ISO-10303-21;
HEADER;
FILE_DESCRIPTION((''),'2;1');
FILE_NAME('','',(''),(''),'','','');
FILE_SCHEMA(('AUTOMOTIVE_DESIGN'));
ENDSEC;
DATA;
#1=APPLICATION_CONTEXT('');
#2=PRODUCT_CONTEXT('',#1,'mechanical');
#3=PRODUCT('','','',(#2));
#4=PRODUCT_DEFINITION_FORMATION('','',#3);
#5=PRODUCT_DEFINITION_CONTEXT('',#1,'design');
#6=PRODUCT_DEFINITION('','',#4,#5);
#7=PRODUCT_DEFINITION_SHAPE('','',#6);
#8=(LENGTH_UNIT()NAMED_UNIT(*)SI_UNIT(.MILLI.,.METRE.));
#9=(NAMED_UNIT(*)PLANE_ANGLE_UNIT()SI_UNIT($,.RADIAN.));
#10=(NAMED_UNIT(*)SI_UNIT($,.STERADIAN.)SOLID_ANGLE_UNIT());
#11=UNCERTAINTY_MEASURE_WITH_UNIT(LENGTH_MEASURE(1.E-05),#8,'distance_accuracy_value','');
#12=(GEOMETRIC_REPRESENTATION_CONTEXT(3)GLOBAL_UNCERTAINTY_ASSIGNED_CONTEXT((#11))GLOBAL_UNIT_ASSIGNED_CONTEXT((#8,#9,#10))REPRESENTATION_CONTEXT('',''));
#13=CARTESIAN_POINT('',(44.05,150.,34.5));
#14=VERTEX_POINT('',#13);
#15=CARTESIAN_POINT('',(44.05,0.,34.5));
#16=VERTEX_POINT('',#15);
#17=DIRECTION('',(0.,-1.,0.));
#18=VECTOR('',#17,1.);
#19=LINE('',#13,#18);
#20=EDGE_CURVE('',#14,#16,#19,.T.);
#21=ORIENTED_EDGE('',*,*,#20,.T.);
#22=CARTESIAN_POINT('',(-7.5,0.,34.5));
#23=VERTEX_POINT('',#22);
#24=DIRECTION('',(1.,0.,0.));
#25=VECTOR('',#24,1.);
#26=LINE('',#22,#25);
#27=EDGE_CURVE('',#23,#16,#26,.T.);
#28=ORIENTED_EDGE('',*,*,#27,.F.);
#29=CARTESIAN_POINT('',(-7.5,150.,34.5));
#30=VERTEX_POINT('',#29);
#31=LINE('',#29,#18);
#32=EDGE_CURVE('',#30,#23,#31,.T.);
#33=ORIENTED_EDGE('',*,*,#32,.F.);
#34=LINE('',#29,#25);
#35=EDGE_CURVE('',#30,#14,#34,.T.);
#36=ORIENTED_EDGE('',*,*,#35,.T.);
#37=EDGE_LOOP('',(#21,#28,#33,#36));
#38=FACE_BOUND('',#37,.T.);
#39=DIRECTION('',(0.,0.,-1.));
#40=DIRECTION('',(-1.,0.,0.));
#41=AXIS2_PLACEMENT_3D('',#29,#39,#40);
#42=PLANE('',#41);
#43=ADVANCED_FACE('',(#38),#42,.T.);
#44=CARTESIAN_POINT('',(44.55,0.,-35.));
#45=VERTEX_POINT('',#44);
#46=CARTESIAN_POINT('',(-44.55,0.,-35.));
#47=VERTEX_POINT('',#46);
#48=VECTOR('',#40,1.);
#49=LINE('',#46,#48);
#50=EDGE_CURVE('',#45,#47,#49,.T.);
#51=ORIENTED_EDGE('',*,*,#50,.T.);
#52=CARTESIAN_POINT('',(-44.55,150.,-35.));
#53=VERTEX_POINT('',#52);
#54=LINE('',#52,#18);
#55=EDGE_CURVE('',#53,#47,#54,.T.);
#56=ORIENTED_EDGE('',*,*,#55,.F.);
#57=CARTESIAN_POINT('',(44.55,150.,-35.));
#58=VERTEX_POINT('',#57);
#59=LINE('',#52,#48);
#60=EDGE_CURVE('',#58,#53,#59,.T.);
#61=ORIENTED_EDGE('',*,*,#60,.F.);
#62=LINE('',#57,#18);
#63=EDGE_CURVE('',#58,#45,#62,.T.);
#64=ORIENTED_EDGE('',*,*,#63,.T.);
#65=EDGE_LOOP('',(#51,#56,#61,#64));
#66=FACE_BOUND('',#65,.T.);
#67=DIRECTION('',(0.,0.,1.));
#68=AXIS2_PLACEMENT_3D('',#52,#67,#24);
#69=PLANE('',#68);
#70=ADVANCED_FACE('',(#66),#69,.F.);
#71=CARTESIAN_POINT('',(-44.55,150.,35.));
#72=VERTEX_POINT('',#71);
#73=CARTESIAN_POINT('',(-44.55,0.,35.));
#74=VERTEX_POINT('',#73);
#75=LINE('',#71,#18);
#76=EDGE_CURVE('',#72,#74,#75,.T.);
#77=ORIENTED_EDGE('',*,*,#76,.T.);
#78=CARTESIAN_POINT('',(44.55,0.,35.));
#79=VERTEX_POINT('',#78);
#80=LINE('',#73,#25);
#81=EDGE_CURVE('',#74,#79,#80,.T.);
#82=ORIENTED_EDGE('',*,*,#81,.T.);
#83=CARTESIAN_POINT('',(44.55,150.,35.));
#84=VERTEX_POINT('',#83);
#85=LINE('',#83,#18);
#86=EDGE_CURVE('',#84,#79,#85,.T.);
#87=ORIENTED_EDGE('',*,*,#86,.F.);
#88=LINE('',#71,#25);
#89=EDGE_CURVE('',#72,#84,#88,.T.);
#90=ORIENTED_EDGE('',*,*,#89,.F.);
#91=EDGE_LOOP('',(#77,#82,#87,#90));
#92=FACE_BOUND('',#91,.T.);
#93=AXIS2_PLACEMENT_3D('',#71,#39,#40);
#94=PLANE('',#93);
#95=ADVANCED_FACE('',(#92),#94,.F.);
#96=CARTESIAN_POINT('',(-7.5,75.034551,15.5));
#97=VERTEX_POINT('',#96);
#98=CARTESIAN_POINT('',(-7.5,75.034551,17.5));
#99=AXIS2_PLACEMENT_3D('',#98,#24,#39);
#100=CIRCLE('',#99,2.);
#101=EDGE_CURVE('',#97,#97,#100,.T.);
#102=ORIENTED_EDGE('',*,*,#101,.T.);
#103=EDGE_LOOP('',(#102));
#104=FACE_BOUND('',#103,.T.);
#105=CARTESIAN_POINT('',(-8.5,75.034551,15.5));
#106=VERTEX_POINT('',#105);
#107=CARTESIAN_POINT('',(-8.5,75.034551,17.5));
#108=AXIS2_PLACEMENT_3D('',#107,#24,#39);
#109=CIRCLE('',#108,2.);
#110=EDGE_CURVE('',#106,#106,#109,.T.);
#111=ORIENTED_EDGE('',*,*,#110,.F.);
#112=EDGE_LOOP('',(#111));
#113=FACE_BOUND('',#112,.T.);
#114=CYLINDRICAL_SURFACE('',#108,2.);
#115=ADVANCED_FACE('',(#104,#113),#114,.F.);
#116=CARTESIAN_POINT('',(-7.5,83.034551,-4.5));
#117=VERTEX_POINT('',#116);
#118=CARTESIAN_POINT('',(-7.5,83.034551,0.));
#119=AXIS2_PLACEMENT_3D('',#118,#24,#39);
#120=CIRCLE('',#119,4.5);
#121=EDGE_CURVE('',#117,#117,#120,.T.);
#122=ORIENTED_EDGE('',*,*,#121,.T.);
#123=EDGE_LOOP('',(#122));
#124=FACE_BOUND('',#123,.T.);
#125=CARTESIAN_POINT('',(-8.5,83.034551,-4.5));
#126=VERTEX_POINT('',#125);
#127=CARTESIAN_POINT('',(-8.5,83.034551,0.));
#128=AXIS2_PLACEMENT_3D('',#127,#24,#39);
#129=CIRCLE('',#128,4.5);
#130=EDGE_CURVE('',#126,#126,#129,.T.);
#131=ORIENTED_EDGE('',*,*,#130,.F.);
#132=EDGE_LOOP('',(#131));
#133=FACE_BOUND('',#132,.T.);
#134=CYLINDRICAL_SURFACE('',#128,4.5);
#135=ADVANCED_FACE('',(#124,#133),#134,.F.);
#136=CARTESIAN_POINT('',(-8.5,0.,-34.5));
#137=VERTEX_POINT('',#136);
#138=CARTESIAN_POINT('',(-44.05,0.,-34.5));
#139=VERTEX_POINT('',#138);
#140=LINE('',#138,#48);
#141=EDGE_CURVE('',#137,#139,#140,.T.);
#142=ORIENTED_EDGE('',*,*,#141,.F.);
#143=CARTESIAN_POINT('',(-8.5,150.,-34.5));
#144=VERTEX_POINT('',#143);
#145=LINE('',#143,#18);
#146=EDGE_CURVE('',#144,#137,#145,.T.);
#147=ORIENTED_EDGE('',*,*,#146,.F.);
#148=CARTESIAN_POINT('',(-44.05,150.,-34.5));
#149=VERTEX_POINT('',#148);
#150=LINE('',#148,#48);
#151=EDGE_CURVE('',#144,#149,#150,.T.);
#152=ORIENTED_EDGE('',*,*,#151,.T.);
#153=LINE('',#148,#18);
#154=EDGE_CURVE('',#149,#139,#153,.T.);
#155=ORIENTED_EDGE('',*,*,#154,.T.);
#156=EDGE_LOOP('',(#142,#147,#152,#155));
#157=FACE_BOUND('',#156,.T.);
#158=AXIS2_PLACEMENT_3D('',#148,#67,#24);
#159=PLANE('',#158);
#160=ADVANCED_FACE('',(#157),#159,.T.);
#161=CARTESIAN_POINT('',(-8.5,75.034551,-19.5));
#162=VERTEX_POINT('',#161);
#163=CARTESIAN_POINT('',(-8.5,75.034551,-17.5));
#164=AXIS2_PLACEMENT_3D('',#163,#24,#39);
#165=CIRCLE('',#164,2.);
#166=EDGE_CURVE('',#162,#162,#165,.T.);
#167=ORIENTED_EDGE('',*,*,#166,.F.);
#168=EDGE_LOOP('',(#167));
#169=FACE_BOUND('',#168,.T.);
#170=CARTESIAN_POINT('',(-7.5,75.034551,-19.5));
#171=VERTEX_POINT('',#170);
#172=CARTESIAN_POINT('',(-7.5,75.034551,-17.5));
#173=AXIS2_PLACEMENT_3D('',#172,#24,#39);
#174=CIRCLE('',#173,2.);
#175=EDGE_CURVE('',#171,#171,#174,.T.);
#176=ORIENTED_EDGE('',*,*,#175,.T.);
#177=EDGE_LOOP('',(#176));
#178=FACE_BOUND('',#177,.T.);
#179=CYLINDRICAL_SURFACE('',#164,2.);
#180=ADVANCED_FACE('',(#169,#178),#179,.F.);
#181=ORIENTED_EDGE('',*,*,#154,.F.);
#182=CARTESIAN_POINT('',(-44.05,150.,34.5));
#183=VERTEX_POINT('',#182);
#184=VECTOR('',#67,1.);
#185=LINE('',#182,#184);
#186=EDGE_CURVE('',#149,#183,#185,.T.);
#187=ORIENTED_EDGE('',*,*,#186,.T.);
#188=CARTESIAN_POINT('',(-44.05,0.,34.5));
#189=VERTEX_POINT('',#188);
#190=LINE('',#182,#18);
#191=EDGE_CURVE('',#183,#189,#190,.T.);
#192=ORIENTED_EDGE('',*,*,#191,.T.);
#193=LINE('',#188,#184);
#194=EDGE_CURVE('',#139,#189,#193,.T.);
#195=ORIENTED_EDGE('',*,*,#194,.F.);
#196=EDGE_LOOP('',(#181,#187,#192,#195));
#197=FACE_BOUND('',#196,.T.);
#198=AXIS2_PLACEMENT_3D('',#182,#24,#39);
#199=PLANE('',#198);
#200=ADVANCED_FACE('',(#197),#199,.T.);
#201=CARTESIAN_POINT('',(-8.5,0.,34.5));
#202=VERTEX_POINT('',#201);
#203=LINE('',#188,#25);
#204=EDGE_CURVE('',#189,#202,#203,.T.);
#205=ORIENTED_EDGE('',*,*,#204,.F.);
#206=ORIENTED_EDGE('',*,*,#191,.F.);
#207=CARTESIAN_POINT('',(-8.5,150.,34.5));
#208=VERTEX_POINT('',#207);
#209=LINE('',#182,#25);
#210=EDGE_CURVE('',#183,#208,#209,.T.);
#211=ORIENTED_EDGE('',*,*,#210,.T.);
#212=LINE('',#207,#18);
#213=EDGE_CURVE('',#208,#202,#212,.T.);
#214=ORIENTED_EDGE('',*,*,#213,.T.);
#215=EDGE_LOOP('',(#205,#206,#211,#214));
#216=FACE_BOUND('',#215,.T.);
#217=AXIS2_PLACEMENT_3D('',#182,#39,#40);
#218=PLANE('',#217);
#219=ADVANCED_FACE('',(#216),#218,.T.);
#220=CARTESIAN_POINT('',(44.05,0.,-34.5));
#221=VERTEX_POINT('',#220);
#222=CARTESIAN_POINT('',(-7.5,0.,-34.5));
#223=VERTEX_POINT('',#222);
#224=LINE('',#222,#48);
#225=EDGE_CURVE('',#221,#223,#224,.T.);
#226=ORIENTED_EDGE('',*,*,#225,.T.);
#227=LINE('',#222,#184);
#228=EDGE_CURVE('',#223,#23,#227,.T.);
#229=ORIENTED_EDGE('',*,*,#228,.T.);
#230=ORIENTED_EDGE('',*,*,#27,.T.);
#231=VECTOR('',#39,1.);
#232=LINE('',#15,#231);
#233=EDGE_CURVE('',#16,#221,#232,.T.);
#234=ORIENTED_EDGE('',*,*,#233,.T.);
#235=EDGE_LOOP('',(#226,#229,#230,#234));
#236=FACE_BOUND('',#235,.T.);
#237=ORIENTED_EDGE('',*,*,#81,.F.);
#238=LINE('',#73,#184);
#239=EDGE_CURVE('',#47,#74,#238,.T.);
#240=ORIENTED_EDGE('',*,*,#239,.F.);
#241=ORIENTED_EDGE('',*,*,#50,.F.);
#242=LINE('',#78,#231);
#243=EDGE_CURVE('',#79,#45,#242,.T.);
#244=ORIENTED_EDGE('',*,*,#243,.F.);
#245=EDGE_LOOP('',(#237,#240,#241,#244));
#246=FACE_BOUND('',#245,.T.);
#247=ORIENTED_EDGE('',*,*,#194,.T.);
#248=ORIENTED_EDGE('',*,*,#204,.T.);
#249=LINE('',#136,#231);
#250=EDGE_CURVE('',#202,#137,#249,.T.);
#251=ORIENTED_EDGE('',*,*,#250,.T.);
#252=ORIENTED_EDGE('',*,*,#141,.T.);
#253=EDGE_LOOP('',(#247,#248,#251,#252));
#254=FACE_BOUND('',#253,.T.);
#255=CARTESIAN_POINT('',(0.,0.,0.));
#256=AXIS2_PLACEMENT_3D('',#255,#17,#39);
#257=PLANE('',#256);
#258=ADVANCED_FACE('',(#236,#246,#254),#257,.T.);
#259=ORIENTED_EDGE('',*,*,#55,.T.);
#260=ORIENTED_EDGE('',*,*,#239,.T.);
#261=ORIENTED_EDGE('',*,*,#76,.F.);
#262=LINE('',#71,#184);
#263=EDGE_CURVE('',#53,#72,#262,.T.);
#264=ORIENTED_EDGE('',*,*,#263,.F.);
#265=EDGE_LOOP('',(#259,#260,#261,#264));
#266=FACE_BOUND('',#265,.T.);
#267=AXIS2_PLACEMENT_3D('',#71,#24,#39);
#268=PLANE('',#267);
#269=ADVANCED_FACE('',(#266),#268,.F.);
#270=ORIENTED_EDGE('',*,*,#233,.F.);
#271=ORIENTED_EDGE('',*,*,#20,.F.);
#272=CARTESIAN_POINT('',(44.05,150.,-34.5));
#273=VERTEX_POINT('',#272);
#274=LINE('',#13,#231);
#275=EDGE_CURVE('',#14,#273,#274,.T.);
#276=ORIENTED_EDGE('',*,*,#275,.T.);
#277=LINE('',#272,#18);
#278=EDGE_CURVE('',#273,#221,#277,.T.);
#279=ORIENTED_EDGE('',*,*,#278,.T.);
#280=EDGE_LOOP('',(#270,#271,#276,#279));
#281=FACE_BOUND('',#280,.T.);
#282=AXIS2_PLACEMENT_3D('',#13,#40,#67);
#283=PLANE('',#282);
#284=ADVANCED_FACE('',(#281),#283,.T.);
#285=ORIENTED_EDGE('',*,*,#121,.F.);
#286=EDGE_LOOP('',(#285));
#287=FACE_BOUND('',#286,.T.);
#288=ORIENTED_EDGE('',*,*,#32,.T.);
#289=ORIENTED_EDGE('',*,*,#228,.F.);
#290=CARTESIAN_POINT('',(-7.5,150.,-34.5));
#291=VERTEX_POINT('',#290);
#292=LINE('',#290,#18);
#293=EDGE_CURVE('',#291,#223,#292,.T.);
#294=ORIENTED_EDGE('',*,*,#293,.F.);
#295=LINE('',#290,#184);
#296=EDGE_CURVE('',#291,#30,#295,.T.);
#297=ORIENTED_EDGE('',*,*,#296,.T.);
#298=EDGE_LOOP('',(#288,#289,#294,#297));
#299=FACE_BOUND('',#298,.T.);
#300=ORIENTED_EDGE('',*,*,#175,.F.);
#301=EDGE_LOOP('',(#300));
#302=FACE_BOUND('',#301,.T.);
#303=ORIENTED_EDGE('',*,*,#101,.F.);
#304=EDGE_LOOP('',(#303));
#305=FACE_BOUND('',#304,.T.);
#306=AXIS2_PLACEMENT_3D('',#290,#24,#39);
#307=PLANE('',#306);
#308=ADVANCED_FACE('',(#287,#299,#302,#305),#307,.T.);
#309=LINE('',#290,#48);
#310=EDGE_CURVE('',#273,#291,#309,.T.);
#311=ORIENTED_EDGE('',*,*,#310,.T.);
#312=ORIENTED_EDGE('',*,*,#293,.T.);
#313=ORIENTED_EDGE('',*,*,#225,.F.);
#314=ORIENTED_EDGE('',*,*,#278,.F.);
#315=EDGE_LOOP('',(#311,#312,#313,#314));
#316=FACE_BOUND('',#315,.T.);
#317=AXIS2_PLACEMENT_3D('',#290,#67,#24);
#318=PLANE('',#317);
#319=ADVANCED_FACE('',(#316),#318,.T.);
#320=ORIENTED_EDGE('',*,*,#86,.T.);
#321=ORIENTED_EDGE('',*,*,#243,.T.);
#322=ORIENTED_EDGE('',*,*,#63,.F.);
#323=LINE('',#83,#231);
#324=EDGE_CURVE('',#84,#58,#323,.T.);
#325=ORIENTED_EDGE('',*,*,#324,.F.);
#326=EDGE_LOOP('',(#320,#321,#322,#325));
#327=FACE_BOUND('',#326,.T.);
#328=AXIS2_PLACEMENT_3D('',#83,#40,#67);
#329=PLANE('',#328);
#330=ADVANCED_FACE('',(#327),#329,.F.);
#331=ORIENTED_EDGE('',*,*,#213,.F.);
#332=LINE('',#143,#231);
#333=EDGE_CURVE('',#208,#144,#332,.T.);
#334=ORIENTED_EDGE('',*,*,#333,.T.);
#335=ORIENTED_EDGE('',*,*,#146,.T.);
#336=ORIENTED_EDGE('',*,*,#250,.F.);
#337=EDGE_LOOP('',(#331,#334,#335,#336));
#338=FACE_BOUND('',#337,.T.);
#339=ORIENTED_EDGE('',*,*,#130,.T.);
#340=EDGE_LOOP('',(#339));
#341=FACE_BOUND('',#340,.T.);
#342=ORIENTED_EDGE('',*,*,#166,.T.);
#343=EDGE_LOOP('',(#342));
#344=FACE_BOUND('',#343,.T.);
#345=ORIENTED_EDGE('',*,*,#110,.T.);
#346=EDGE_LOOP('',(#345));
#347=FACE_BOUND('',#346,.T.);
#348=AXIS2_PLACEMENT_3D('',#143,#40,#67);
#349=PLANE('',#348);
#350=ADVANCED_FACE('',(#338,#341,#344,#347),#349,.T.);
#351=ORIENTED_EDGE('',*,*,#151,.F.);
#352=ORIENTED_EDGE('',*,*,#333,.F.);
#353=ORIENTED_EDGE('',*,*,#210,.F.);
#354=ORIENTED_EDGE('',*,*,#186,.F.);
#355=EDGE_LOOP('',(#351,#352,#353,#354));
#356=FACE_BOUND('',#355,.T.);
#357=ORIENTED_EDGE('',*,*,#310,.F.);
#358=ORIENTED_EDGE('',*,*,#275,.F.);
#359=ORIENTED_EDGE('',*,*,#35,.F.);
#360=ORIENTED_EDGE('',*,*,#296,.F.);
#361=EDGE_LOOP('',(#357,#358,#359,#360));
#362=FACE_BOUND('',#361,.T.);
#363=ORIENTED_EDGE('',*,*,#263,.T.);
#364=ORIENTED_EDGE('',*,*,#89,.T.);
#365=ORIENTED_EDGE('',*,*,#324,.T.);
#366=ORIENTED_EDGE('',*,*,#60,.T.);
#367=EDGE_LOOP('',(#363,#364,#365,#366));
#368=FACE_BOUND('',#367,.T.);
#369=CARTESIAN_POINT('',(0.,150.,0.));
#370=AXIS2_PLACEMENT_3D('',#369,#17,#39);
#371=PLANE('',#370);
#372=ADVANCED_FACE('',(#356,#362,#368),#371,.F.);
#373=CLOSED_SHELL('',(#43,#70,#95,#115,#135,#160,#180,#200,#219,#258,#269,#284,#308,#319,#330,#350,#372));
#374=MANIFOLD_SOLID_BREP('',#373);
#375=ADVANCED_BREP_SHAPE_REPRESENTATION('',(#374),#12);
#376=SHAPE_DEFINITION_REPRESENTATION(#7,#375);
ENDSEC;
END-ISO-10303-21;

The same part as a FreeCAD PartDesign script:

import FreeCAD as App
import Part
import Sketcher
from FreeCAD import Vector
Q = App.Units.Quantity


def add_polygon(sketch, points):
    """Adds a closed chain of lines whose ends are joined by coincident constraints."""
    first, n = sketch.GeometryCount, len(points)
    for a, b in zip(points, points[1:] + points[:1]):
        sketch.addGeometry(Part.LineSegment(App.Vector(*a, 0), App.Vector(*b, 0)), False)
    for i in range(n):
        sketch.addConstraint(Sketcher.Constraint("Coincident", first + i, 2, first + (i + 1) % n, 1))

doc = App.newDocument("Part")
body = doc.addObject("PartDesign::Body", "Body")

sketch1 = body.newObject("Sketcher::SketchObject", "Sketch")
sketch1.AttachmentSupport = (doc.getObject("XZ_Plane"), [""])
sketch1.MapMode = "FlatFace"
add_polygon(sketch1, [(-45, -35), (-45, 35), (45, 35), (45, -35)])
add_polygon(sketch1, [(-8, 34), (-44, 34), (-44, -34), (-8, -34)])
add_polygon(sketch1, [(44, 34), (-8, 34), (-8, -34), (44, -34)])
sketch1.addConstraint([
    Sketcher.Constraint("Vertical", 0),
    Sketcher.Constraint("Horizontal", 1),
    Sketcher.Constraint("Vertical", 2),
    Sketcher.Constraint("Horizontal", 3),
    Sketcher.Constraint("Horizontal", 4),
    Sketcher.Constraint("Vertical", 5),
    Sketcher.Constraint("Horizontal", 6),
    Sketcher.Constraint("Vertical", 7),
    Sketcher.Constraint("Horizontal", 8),
    Sketcher.Constraint("Vertical", 9),
    Sketcher.Constraint("Horizontal", 10),
    Sketcher.Constraint("Vertical", 11),
    Sketcher.Constraint("Symmetric", 0, 2, 2, 2, -1, 1),
    Sketcher.Constraint("Symmetric", 4, 2, 10, 2, -1, 1),
    Sketcher.Constraint("Horizontal", 7, 2, 8, 2),
    Sketcher.Constraint("Horizontal", 6, 2, 9, 2),
    Sketcher.Constraint("DistanceY", 0, 1, 0, 2, Q("70 mm")),
    Sketcher.Constraint("DistanceY", 5, 2, 5, 1, Q("69 mm")),
    Sketcher.Constraint("DistanceX", 1, 1, 1, 2, Q("89.1 mm")),
    Sketcher.Constraint("DistanceX", 7, 2, 8, 2, Q("1 mm")),
    Sketcher.Constraint("DistanceX", 4, 2, 4, 1, Q("35.55 mm")),
    Sketcher.Constraint("DistanceX", 8, 2, 8, 1, Q("51.55 mm")),
])
pad1 = body.newObject("PartDesign::Pad", "Pad")
pad1.Profile = sketch1
pad1.Length = 150
pad1.Reversed = True

sketch2 = body.newObject("Sketcher::SketchObject", "Sketch001")
sketch2.AttachmentSupport = (doc.getObject("YZ_Plane"), [""])
sketch2.MapMode = "FlatFace"
sketch2.AttachmentOffset = App.Placement(Vector(0, 0, -7.5), App.Rotation())
sketch2.addGeometry([
    Part.Circle(Vector(75, -17.5, 0), Vector(0, 0, 1), 2),
    Part.Circle(Vector(75, 17.5, 0), Vector(0, 0, 1), 2),
    Part.Circle(Vector(83, 0, 0), Vector(0, 0, 1), 4.5),
], False)
sketch2.addConstraint([
    Sketcher.Constraint("Equal", 0, 1),
    Sketcher.Constraint("Symmetric", 0, 3, 1, 3, -1),
    Sketcher.Constraint("PointOnObject", 2, 3, -1),
    Sketcher.Constraint("Diameter", 0, Q("4 mm")),
    Sketcher.Constraint("Diameter", 2, Q("9 mm")),
    Sketcher.Constraint("DistanceY", 0, 3, 1, 3, Q("35 mm")),
    Sketcher.Constraint("DistanceX", 0, 3, 2, 3, Q("8 mm")),
    Sketcher.Constraint("DistanceX", -1, 1, 0, 3, Q("75.034551 mm")),
])
pocket1 = body.newObject("PartDesign::Pocket", "Pocket")
pocket1.Profile = sketch2
pocket1.Length = 1

doc.recompute()
